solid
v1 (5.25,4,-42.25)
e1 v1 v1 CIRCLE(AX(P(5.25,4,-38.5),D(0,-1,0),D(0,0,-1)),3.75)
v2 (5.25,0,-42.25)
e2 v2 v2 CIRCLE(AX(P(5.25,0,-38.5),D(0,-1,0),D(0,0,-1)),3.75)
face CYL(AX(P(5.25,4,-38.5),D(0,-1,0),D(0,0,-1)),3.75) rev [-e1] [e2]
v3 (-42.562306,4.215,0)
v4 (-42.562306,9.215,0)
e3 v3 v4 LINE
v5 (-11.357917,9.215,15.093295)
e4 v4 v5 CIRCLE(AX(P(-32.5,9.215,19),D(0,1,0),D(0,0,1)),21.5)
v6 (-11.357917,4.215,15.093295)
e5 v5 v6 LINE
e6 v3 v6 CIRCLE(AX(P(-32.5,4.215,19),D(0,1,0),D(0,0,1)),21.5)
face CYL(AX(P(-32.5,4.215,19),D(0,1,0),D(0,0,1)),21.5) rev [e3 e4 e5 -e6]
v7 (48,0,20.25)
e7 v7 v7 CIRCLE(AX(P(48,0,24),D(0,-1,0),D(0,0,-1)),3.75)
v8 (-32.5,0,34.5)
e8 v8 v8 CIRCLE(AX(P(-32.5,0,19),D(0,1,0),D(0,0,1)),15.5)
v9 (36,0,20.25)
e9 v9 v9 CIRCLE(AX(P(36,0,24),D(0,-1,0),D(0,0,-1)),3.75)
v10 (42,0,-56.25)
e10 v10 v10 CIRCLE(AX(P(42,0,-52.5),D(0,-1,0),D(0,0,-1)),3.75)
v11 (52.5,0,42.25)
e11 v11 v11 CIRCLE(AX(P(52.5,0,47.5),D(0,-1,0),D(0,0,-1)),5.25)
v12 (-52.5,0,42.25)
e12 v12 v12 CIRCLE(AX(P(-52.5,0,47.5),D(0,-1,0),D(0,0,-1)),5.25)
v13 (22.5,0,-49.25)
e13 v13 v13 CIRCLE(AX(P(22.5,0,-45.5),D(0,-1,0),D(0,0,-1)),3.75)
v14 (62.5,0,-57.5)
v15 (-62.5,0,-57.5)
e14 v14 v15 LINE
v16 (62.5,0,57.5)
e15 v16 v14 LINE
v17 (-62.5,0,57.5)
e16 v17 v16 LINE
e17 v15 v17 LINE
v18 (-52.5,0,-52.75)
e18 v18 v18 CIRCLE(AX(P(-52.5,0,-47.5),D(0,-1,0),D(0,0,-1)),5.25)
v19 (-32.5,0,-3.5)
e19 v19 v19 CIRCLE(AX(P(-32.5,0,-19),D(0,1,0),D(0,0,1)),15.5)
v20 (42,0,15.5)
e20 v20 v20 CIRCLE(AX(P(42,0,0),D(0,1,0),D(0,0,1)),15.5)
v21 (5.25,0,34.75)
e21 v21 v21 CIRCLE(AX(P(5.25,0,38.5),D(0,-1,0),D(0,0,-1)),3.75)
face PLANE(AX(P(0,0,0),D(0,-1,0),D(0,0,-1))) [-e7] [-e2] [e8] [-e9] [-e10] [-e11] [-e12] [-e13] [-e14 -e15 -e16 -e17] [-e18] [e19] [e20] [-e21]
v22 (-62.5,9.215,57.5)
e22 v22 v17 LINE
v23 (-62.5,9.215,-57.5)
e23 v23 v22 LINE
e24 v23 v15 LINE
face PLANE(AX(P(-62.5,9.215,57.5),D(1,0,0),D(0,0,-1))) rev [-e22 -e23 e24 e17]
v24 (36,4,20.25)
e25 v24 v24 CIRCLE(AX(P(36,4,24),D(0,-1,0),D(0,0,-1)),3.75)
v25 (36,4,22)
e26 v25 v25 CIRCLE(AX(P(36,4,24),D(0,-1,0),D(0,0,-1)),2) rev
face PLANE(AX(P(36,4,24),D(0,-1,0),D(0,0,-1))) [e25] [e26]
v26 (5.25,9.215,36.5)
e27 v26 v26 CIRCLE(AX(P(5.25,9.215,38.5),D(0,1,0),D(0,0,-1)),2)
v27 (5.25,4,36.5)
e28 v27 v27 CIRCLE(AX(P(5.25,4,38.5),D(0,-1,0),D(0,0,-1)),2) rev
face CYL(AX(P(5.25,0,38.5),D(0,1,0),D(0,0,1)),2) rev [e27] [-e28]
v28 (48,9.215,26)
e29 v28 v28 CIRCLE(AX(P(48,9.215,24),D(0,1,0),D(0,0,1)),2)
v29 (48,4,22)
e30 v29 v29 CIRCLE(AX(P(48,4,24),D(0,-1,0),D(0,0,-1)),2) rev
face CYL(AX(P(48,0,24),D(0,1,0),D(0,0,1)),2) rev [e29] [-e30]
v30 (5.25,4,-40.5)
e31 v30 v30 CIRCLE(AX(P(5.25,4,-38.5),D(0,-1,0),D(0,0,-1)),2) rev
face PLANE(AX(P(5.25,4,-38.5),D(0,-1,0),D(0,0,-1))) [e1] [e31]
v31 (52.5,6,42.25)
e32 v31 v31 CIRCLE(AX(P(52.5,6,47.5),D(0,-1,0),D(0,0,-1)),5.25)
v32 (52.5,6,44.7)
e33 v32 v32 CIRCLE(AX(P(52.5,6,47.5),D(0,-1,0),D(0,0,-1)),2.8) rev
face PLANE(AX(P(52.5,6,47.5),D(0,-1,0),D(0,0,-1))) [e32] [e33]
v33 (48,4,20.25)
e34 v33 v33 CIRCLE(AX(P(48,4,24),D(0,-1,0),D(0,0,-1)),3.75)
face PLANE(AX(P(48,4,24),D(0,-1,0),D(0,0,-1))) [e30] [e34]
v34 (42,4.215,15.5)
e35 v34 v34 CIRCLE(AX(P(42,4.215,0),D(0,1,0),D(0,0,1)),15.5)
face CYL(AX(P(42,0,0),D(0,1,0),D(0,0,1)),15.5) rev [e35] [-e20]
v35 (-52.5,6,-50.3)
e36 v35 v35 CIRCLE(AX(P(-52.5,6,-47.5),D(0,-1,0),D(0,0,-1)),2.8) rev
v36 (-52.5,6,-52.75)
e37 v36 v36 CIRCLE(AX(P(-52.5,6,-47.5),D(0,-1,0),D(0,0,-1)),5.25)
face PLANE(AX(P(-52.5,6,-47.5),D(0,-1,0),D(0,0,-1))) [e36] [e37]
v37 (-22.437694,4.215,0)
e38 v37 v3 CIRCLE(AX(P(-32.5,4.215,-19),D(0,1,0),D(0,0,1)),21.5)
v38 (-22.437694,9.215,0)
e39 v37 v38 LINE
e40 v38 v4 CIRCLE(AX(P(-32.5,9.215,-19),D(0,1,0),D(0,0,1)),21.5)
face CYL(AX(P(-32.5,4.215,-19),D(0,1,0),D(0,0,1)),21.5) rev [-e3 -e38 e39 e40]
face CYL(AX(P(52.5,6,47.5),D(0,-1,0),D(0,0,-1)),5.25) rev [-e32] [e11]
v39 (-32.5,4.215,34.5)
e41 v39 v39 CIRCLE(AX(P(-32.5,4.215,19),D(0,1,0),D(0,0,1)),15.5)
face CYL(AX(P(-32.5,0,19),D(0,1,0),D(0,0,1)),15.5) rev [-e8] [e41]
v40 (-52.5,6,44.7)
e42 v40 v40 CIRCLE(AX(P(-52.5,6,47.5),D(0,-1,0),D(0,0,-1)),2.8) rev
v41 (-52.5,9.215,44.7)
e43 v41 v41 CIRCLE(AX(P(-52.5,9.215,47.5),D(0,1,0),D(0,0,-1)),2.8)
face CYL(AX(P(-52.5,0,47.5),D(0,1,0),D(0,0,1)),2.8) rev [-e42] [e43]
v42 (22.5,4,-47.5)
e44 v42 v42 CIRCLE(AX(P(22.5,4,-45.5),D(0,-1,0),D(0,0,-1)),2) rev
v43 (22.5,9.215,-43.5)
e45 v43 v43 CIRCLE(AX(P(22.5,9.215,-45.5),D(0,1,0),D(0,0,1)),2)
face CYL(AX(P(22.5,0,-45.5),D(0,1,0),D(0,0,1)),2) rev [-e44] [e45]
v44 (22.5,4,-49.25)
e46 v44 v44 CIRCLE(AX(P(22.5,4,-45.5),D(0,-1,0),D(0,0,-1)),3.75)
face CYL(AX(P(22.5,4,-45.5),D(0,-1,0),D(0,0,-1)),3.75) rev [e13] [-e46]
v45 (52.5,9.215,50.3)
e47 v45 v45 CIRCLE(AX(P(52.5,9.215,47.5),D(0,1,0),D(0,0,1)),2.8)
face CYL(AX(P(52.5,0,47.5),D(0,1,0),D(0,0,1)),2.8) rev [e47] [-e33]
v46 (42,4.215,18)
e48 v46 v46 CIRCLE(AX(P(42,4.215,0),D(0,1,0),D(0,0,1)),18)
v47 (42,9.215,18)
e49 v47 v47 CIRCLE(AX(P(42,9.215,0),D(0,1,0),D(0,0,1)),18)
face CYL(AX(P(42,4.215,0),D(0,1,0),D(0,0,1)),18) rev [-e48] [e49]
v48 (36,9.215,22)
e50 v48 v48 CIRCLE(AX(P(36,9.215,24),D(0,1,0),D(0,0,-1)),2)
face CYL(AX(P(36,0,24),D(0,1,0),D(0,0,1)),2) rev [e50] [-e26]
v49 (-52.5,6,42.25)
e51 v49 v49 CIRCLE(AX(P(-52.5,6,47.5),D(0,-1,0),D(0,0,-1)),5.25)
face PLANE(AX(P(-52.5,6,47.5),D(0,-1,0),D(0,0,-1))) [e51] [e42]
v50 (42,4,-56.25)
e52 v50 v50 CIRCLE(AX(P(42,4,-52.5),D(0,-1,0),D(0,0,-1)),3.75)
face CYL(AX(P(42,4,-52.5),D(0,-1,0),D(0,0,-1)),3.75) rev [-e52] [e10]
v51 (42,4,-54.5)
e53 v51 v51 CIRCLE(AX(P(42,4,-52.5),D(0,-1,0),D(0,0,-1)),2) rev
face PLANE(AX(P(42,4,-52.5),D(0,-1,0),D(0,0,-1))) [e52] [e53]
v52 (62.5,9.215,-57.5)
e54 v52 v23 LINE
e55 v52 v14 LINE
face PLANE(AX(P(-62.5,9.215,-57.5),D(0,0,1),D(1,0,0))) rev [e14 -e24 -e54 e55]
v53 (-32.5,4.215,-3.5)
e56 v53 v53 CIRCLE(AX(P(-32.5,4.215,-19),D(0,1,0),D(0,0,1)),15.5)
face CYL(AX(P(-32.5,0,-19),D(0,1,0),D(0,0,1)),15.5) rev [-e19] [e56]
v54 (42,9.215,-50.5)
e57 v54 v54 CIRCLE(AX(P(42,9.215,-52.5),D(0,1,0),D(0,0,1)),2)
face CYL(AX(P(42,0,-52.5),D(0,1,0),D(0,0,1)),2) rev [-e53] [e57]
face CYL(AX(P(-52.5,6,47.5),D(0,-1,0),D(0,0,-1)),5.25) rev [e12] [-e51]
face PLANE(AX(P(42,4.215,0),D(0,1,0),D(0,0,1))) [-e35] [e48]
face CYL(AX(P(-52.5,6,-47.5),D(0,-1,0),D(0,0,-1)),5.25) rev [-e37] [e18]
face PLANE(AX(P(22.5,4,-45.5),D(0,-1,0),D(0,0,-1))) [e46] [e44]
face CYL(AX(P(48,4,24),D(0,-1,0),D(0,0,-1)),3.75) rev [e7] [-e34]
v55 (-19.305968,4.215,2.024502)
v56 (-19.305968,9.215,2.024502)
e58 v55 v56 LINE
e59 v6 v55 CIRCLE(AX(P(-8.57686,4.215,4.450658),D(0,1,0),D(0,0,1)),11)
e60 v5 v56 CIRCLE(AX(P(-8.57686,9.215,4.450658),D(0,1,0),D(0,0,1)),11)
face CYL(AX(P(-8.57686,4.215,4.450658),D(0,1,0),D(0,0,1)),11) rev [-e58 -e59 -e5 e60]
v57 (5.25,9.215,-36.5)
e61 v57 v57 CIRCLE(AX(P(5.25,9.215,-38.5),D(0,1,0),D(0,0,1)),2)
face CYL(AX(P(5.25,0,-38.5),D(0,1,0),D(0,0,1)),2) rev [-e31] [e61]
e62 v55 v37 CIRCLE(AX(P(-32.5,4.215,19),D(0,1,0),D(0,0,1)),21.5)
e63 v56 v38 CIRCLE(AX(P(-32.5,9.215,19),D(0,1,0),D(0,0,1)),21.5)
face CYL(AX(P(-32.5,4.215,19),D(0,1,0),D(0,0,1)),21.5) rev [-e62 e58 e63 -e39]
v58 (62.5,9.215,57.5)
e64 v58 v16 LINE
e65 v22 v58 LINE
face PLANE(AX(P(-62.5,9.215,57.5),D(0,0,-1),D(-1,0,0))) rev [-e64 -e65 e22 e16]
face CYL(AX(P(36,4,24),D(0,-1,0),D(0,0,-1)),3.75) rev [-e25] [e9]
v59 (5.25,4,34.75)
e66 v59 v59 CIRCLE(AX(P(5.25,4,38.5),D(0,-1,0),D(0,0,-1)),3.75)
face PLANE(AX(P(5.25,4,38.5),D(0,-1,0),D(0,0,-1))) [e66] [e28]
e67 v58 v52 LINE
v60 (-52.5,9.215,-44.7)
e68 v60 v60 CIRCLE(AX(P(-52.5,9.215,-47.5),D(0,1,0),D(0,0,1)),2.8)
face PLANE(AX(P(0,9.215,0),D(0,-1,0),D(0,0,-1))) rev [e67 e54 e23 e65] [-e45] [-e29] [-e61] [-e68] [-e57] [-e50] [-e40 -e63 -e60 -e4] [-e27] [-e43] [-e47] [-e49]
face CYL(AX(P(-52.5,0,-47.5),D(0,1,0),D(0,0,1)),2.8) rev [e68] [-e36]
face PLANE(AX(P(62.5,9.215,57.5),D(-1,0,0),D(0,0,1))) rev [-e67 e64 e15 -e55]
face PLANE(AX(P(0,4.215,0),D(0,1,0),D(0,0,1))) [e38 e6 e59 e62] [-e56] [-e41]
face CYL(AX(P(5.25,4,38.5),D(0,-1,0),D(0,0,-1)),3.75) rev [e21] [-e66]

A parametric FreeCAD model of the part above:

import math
import FreeCAD as App
import Part
import Sketcher

V = App.Vector
Q = App.Units.Quantity

doc = App.newDocument("Part")
body = doc.addObject("PartDesign::Body", "Body")

# Sketch on XZ plane
sketch1 = body.newObject("Sketcher::SketchObject", "Sketch")
sketch1.AttachmentSupport = (doc.getObject("XZ_Plane"), [""])
sketch1.MapMode = "FlatFace"
sketch1.addGeometry(Part.LineSegment(V(-62, -58, 0), V(-62, 58, 0)), False)
sketch1.addGeometry(Part.LineSegment(V(-62, 58, 0), V(62, 58, 0)), False)
sketch1.addGeometry(Part.LineSegment(V(62, 58, 0), V(62, -58, 0)), False)
sketch1.addGeometry(Part.LineSegment(V(62, -58, 0), V(-62, -58, 0)), False)
sketch1.addConstraint(Sketcher.Constraint("Coincident", 0, 2, 1, 1))
sketch1.addConstraint(Sketcher.Constraint("Coincident", 1, 2, 2, 1))
sketch1.addConstraint(Sketcher.Constraint("Coincident", 2, 2, 3, 1))
sketch1.addConstraint(Sketcher.Constraint("Coincident", 3, 2, 0, 1))
sketch1.addConstraint(Sketcher.Constraint("Vertical", 0))
sketch1.addConstraint(Sketcher.Constraint("Horizontal", 1))
sketch1.addConstraint(Sketcher.Constraint("Vertical", 2))
sketch1.addConstraint(Sketcher.Constraint("Horizontal", 3))
sketch1.addConstraint(Sketcher.Constraint("Symmetric", 0, 2, 2, 2, -1, 1))
sketch1.addConstraint(Sketcher.Constraint("DistanceX", 1, 1, 1, 2, Q("125 mm")))
sketch1.addConstraint(Sketcher.Constraint("DistanceY", 0, 1, 0, 2, Q("115 mm")))
pad1 = body.newObject("PartDesign::Pad", "Pad")
pad1.Profile = sketch1
pad1.Length = 9.215
pad1.Reversed = True

# Sketch on XZ plane
sketch2 = body.newObject("Sketcher::SketchObject", "Sketch001")
sketch2.AttachmentSupport = (doc.getObject("XZ_Plane"), [""])
sketch2.MapMode = "FlatFace"
sketch2.AttachmentOffset = App.Placement(V(0, 0, -9.215), App.Rotation())
sketch2.addGeometry(Part.ArcOfCircle(Part.Circle(V(-32, -19, 0), V(0, 0, 1), 22), math.radians(118), math.radians(422)), False)
sketch2.addGeometry(Part.ArcOfCircle(Part.Circle(V(-32, 19, 0), V(0, 0, 1), 22), math.radians(-62), math.radians(242)), False)
sketch2.addConstraint(Sketcher.Constraint("Coincident", 0, 1, 1, 2))
sketch2.addConstraint(Sketcher.Constraint("Coincident", 1, 1, 0, 2))
sketch2.addConstraint(Sketcher.Constraint("Equal", 0, 1))
sketch2.addConstraint(Sketcher.Constraint("Symmetric", 0, 3, 1, 3, -1))
sketch2.addConstraint(Sketcher.Constraint("Radius", 0, Q("21.5 mm")))
sketch2.addConstraint(Sketcher.Constraint("DistanceY", 0, 3, -1, 1, Q("19 mm")))
sketch2.addConstraint(Sketcher.Constraint("DistanceX", 0, 3, -1, 1, Q("32.5 mm")))
pocket1 = body.newObject("PartDesign::Pocket", "Pocket")
pocket1.Profile = sketch2
pocket1.Length = 5
pocket1.Reversed = True

# Sketch on XZ plane
sketch3 = body.newObject("Sketcher::SketchObject", "Sketch002")
sketch3.AttachmentSupport = (doc.getObject("XZ_Plane"), [""])
sketch3.MapMode = "FlatFace"
sketch3.AttachmentOffset = App.Placement(V(0, 0, -9.215), App.Rotation())
sketch3.addGeometry(Part.Circle(V(-9, 4, 0), V(0, 0, 1), 11), False)
sketch3.addConstraint(Sketcher.Constraint("Diameter", 0, Q("22 mm")))
sketch3.addConstraint(Sketcher.Constraint("DistanceX", 0, 3, -1, 1, Q("8.57686 mm")))
sketch3.addConstraint(Sketcher.Constraint("DistanceY", -1, 1, 0, 3, Q("4.450658 mm")))
pocket2 = body.newObject("PartDesign::Pocket", "Pocket001")
pocket2.Profile = sketch3
pocket2.Length = 5
pocket2.Reversed = True

# Sketch on XZ plane
sketch4 = body.newObject("Sketcher::SketchObject", "Sketch003")
sketch4.AttachmentSupport = (doc.getObject("XZ_Plane"), [""])
sketch4.MapMode = "FlatFace"
sketch4.AttachmentOffset = App.Placement(V(0, 0, -9.215), App.Rotation())
sketch4.addGeometry(Part.Circle(V(42, 0, 0), V(0, 0, 1), 18), False)
sketch4.addConstraint(Sketcher.Constraint("PointOnObject", 0, 3, -1))
sketch4.addConstraint(Sketcher.Constraint("Diameter", 0, Q("36 mm")))
sketch4.addConstraint(Sketcher.Constraint("DistanceX", -1, 1, 0, 3, Q("42 mm")))
pocket3 = body.newObject("PartDesign::Pocket", "Pocket002")
pocket3.Profile = sketch4
pocket3.Length = 5
pocket3.Reversed = True

# Sketch on XZ plane
sketch5 = body.newObject("Sketcher::SketchObject", "Sketch004")
sketch5.AttachmentSupport = (doc.getObject("XZ_Plane"), [""])
sketch5.MapMode = "FlatFace"
sketch5.AttachmentOffset = App.Placement(V(0, 0, -9.215), App.Rotation())
sketch5.addGeometry(Part.Circle(V(-32, -19, 0), V(0, 0, 1), 16), False)
sketch5.addGeometry(Part.Circle(V(-32, 19, 0), V(0, 0, 1), 16), False)
sketch5.addGeometry(Part.Circle(V(42, 0, 0), V(0, 0, 1), 16), False)
sketch5.addConstraint(Sketcher.Constraint("Equal", 0, 1))
sketch5.addConstraint(Sketcher.Constraint("Equal", 1, 2))
sketch5.addConstraint(Sketcher.Constraint("Symmetric", 0, 3, 1, 3, -1))
sketch5.addConstraint(Sketcher.Constraint("PointOnObject", 2, 3, -1))
sketch5.addConstraint(Sketcher.Constraint("Diameter", 0, Q("31 mm")))
sketch5.addConstraint(Sketcher.Constraint("DistanceY", 0, 3, -1, 1, Q("19 mm")))
sketch5.addConstraint(Sketcher.Constraint("DistanceX", -1, 1, 2, 3, Q("42 mm")))
sketch5.addConstraint(Sketcher.Constraint("DistanceX", 0, 3, -1, 1, Q("32.5 mm")))
pocket4 = body.newObject("PartDesign::Pocket", "Pocket003")
pocket4.Profile = sketch5
pocket4.Type = "ThroughAll"
pocket4.Reversed = True

# Sketch on XZ plane
sketch6 = body.newObject("Sketcher::SketchObject", "Sketch005")
sketch6.AttachmentSupport = (doc.getObject("XZ_Plane"), [""])
sketch6.MapMode = "FlatFace"
sketch6.AttachmentOffset = App.Placement(V(0, 0, -9.215), App.Rotation())
sketch6.addGeometry(Part.Circle(V(22.5, -45.5, 0), V(0, 0, 1), 2), False)
sketch6.addGeometry(Part.Circle(V(42, -52.5, 0), V(0, 0, 1), 2), False)
sketch6.addGeometry(Part.Circle(V(48, 24, 0), V(0, 0, 1), 2), False)
sketch6.addGeometry(Part.Circle(V(36, 24, 0), V(0, 0, 1), 2), False)
sketch6.addConstraint(Sketcher.Constraint("Equal", 0, 1))
sketch6.addConstraint(Sketcher.Constraint("Equal", 1, 2))
sketch6.addConstraint(Sketcher.Constraint("Equal", 2, 3))
sketch6.addConstraint(Sketcher.Constraint("Horizontal", 2, 3, 3, 3))
sketch6.addConstraint(Sketcher.Constraint("Diameter", 0, Q("4 mm")))
sketch6.addConstraint(Sketcher.Constraint("DistanceX", -1, 1, 1, 3, Q("42 mm")))
sketch6.addConstraint(Sketcher.Constraint("DistanceX", -1, 1, 2, 3, Q("48 mm")))
sketch6.addConstraint(Sketcher.Constraint("DistanceY", -1, 1, 2, 3, Q("24 mm")))
sketch6.addConstraint(Sketcher.Constraint("DistanceX", -1, 1, 3, 3, Q("36 mm")))
sketch6.addConstraint(Sketcher.Constraint("DistanceY", 1, 3, 0, 3, Q("7 mm")))
sketch6.addConstraint(Sketcher.Constraint("DistanceX", -1, 1, 0, 3, Q("22.5 mm")))
sketch6.addConstraint(Sketcher.Constraint("DistanceY", 0, 3, -1, 1, Q("45.5 mm")))
pocket5 = body.newObject("PartDesign::Pocket", "Pocket004")
pocket5.Profile = sketch6
pocket5.Type = "ThroughAll"
pocket5.Reversed = True

# Sketch on XZ plane
sketch7 = body.newObject("Sketcher::SketchObject", "Sketch006")
sketch7.AttachmentSupport = (doc.getObject("XZ_Plane"), [""])
sketch7.MapMode = "FlatFace"
sketch7.AttachmentOffset = App.Placement(V(0, 0, -9.215), App.Rotation())
sketch7.addGeometry(Part.Circle(V(5.2, -38.5, 0), V(0, 0, 1), 2), False)
sketch7.addGeometry(Part.Circle(V(5.2, 38.5, 0), V(0, 0, 1), 2), False)
sketch7.addConstraint(Sketcher.Constraint("Equal", 0, 1))
sketch7.addConstraint(Sketcher.Constraint("Symmetric", 0, 3, 1, 3, -1))
sketch7.addConstraint(Sketcher.Constraint("Diameter", 0, Q("4 mm")))
sketch7.addConstraint(Sketcher.Constraint("DistanceY", 0, 3, 1, 3, Q("77 mm")))
sketch7.addConstraint(Sketcher.Constraint("DistanceX", -1, 1, 0, 3, Q("5.25 mm")))
pocket6 = body.newObject("PartDesign::Pocket", "Pocket005")
pocket6.Profile = sketch7
pocket6.Type = "ThroughAll"
pocket6.Reversed = True

# Sketch on XZ plane
sketch8 = body.newObject("Sketcher::SketchObject", "Sketch007")
sketch8.AttachmentSupport = (doc.getObject("XZ_Plane"), [""])
sketch8.MapMode = "FlatFace"
sketch8.AttachmentOffset = App.Placement(V(0, 0, -9.215), App.Rotation())
sketch8.addGeometry(Part.Circle(V(-52.5, -47.5, 0), V(0, 0, 1), 2.8), False)
sketch8.addGeometry(Part.Circle(V(-52.5, 47.5, 0), V(0, 0, 1), 2.8), False)
sketch8.addGeometry(Part.Circle(V(52.5, 47.5, 0), V(0, 0, 1), 2.8), False)
sketch8.addConstraint(Sketcher.Constraint("Equal", 0, 1))
sketch8.addConstraint(Sketcher.Constraint("Equal", 1, 2))
sketch8.addConstraint(Sketcher.Constraint("Symmetric", 0, 3, 2, 3, -1, 1))
sketch8.addConstraint(Sketcher.Constraint("Symmetric", 1, 3, 2, 3, -2))
sketch8.addConstraint(Sketcher.Constraint("Diameter", 0, Q("5.6 mm")))
sketch8.addConstraint(Sketcher.Constraint("DistanceY", 0, 3, 1, 3, Q("95 mm")))
sketch8.addConstraint(Sketcher.Constraint("DistanceX", 1, 3, 2, 3, Q("105 mm")))
pocket7 = body.newObject("PartDesign::Pocket", "Pocket006")
pocket7.Profile = sketch8
pocket7.Type = "ThroughAll"
pocket7.Reversed = True

# Sketch on XZ plane
sketch9 = body.newObject("Sketcher::SketchObject", "Sketch008")
sketch9.AttachmentSupport = (doc.getObject("XZ_Plane"), [""])
sketch9.MapMode = "FlatFace"
sketch9.addGeometry(Part.Circle(V(5.2, 38.5, 0), V(0, 0, 1), 3.8), False)
sketch9.addGeometry(Part.Circle(V(5.2, -38.5, 0), V(0, 0, 1), 3.8), False)
sketch9.addGeometry(Part.Circle(V(22.5, -45.5, 0), V(0, 0, 1), 3.8), False)
sketch9.addGeometry(Part.Circle(V(42, -52.5, 0), V(0, 0, 1), 3.8), False)
sketch9.addGeometry(Part.Circle(V(36, 24, 0), V(0, 0, 1), 3.8), False)
sketch9.addGeometry(Part.Circle(V(48, 24, 0), V(0, 0, 1), 3.8), False)
sketch9.addConstraint(Sketcher.Constraint("Equal", 0, 1))
sketch9.addConstraint(Sketcher.Constraint("Equal", 1, 2))
sketch9.addConstraint(Sketcher.Constraint("Equal", 2, 3))
sketch9.addConstraint(Sketcher.Constraint("Equal", 3, 4))
sketch9.addConstraint(Sketcher.Constraint("Equal", 4, 5))
sketch9.addConstraint(Sketcher.Constraint("Symmetric", 0, 3, 1, 3, -1))
sketch9.addConstraint(Sketcher.Constraint("Horizontal", 4, 3, 5, 3))
sketch9.addConstraint(Sketcher.Constraint("Diameter", 0, Q("7.5 mm")))
sketch9.addConstraint(Sketcher.Constraint("DistanceX", -1, 1, 3, 3, Q("42 mm")))
sketch9.addConstraint(Sketcher.Constraint("DistanceX", -1, 1, 4, 3, Q("36 mm")))
sketch9.addConstraint(Sketcher.Constraint("DistanceY", -1, 1, 4, 3, Q("24 mm")))
sketch9.addConstraint(Sketcher.Constraint("DistanceX", -1, 1, 5, 3, Q("48 mm")))
sketch9.addConstraint(Sketcher.Constraint("DistanceY", 1, 3, 0, 3, Q("77 mm")))
sketch9.addConstraint(Sketcher.Constraint("DistanceY", 2, 3, 1, 3, Q("7 mm")))
sketch9.addConstraint(Sketcher.Constraint("DistanceY", 3, 3, 2, 3, Q("7 mm")))
sketch9.addConstraint(Sketcher.Constraint("DistanceX", -1, 1, 2, 3, Q("22.5 mm")))
sketch9.addConstraint(Sketcher.Constraint("DistanceX", -1, 1, 0, 3, Q("5.25 mm")))
pocket8 = body.newObject("PartDesign::Pocket", "Pocket007")
pocket8.Profile = sketch9
pocket8.Length = 4

# Sketch on XZ plane
sketch10 = body.newObject("Sketcher::SketchObject", "Sketch009")
sketch10.AttachmentSupport = (doc.getObject("XZ_Plane"), [""])
sketch10.MapMode = "FlatFace"
sketch10.addGeometry(Part.Circle(V(-52, 48, 0), V(0, 0, 1), 5), False)
sketch10.addGeometry(Part.Circle(V(52, 48, 0), V(0, 0, 1), 5), False)
sketch10.addGeometry(Part.Circle(V(-52, -48, 0), V(0, 0, 1), 5), False)
sketch10.addConstraint(Sketcher.Constraint("Equal", 0, 1))
sketch10.addConstraint(Sketcher.Constraint("Equal", 1, 2))
sketch10.addConstraint(Sketcher.Constraint("Symmetric", 1, 3, 2, 3, -1, 1))
sketch10.addConstraint(Sketcher.Constraint("Symmetric", 0, 3, 1, 3, -2))
sketch10.addConstraint(Sketcher.Constraint("Diameter", 0, Q("10.5 mm")))
sketch10.addConstraint(Sketcher.Constraint("DistanceX", 0, 3, 1, 3, Q("105 mm")))
sketch10.addConstraint(Sketcher.Constraint("DistanceY", 2, 3, 0, 3, Q("95 mm")))
pocket9 = body.newObject("PartDesign::Pocket", "Pocket008")
pocket9.Profile = sketch10
pocket9.Length = 6

doc.recompute()
